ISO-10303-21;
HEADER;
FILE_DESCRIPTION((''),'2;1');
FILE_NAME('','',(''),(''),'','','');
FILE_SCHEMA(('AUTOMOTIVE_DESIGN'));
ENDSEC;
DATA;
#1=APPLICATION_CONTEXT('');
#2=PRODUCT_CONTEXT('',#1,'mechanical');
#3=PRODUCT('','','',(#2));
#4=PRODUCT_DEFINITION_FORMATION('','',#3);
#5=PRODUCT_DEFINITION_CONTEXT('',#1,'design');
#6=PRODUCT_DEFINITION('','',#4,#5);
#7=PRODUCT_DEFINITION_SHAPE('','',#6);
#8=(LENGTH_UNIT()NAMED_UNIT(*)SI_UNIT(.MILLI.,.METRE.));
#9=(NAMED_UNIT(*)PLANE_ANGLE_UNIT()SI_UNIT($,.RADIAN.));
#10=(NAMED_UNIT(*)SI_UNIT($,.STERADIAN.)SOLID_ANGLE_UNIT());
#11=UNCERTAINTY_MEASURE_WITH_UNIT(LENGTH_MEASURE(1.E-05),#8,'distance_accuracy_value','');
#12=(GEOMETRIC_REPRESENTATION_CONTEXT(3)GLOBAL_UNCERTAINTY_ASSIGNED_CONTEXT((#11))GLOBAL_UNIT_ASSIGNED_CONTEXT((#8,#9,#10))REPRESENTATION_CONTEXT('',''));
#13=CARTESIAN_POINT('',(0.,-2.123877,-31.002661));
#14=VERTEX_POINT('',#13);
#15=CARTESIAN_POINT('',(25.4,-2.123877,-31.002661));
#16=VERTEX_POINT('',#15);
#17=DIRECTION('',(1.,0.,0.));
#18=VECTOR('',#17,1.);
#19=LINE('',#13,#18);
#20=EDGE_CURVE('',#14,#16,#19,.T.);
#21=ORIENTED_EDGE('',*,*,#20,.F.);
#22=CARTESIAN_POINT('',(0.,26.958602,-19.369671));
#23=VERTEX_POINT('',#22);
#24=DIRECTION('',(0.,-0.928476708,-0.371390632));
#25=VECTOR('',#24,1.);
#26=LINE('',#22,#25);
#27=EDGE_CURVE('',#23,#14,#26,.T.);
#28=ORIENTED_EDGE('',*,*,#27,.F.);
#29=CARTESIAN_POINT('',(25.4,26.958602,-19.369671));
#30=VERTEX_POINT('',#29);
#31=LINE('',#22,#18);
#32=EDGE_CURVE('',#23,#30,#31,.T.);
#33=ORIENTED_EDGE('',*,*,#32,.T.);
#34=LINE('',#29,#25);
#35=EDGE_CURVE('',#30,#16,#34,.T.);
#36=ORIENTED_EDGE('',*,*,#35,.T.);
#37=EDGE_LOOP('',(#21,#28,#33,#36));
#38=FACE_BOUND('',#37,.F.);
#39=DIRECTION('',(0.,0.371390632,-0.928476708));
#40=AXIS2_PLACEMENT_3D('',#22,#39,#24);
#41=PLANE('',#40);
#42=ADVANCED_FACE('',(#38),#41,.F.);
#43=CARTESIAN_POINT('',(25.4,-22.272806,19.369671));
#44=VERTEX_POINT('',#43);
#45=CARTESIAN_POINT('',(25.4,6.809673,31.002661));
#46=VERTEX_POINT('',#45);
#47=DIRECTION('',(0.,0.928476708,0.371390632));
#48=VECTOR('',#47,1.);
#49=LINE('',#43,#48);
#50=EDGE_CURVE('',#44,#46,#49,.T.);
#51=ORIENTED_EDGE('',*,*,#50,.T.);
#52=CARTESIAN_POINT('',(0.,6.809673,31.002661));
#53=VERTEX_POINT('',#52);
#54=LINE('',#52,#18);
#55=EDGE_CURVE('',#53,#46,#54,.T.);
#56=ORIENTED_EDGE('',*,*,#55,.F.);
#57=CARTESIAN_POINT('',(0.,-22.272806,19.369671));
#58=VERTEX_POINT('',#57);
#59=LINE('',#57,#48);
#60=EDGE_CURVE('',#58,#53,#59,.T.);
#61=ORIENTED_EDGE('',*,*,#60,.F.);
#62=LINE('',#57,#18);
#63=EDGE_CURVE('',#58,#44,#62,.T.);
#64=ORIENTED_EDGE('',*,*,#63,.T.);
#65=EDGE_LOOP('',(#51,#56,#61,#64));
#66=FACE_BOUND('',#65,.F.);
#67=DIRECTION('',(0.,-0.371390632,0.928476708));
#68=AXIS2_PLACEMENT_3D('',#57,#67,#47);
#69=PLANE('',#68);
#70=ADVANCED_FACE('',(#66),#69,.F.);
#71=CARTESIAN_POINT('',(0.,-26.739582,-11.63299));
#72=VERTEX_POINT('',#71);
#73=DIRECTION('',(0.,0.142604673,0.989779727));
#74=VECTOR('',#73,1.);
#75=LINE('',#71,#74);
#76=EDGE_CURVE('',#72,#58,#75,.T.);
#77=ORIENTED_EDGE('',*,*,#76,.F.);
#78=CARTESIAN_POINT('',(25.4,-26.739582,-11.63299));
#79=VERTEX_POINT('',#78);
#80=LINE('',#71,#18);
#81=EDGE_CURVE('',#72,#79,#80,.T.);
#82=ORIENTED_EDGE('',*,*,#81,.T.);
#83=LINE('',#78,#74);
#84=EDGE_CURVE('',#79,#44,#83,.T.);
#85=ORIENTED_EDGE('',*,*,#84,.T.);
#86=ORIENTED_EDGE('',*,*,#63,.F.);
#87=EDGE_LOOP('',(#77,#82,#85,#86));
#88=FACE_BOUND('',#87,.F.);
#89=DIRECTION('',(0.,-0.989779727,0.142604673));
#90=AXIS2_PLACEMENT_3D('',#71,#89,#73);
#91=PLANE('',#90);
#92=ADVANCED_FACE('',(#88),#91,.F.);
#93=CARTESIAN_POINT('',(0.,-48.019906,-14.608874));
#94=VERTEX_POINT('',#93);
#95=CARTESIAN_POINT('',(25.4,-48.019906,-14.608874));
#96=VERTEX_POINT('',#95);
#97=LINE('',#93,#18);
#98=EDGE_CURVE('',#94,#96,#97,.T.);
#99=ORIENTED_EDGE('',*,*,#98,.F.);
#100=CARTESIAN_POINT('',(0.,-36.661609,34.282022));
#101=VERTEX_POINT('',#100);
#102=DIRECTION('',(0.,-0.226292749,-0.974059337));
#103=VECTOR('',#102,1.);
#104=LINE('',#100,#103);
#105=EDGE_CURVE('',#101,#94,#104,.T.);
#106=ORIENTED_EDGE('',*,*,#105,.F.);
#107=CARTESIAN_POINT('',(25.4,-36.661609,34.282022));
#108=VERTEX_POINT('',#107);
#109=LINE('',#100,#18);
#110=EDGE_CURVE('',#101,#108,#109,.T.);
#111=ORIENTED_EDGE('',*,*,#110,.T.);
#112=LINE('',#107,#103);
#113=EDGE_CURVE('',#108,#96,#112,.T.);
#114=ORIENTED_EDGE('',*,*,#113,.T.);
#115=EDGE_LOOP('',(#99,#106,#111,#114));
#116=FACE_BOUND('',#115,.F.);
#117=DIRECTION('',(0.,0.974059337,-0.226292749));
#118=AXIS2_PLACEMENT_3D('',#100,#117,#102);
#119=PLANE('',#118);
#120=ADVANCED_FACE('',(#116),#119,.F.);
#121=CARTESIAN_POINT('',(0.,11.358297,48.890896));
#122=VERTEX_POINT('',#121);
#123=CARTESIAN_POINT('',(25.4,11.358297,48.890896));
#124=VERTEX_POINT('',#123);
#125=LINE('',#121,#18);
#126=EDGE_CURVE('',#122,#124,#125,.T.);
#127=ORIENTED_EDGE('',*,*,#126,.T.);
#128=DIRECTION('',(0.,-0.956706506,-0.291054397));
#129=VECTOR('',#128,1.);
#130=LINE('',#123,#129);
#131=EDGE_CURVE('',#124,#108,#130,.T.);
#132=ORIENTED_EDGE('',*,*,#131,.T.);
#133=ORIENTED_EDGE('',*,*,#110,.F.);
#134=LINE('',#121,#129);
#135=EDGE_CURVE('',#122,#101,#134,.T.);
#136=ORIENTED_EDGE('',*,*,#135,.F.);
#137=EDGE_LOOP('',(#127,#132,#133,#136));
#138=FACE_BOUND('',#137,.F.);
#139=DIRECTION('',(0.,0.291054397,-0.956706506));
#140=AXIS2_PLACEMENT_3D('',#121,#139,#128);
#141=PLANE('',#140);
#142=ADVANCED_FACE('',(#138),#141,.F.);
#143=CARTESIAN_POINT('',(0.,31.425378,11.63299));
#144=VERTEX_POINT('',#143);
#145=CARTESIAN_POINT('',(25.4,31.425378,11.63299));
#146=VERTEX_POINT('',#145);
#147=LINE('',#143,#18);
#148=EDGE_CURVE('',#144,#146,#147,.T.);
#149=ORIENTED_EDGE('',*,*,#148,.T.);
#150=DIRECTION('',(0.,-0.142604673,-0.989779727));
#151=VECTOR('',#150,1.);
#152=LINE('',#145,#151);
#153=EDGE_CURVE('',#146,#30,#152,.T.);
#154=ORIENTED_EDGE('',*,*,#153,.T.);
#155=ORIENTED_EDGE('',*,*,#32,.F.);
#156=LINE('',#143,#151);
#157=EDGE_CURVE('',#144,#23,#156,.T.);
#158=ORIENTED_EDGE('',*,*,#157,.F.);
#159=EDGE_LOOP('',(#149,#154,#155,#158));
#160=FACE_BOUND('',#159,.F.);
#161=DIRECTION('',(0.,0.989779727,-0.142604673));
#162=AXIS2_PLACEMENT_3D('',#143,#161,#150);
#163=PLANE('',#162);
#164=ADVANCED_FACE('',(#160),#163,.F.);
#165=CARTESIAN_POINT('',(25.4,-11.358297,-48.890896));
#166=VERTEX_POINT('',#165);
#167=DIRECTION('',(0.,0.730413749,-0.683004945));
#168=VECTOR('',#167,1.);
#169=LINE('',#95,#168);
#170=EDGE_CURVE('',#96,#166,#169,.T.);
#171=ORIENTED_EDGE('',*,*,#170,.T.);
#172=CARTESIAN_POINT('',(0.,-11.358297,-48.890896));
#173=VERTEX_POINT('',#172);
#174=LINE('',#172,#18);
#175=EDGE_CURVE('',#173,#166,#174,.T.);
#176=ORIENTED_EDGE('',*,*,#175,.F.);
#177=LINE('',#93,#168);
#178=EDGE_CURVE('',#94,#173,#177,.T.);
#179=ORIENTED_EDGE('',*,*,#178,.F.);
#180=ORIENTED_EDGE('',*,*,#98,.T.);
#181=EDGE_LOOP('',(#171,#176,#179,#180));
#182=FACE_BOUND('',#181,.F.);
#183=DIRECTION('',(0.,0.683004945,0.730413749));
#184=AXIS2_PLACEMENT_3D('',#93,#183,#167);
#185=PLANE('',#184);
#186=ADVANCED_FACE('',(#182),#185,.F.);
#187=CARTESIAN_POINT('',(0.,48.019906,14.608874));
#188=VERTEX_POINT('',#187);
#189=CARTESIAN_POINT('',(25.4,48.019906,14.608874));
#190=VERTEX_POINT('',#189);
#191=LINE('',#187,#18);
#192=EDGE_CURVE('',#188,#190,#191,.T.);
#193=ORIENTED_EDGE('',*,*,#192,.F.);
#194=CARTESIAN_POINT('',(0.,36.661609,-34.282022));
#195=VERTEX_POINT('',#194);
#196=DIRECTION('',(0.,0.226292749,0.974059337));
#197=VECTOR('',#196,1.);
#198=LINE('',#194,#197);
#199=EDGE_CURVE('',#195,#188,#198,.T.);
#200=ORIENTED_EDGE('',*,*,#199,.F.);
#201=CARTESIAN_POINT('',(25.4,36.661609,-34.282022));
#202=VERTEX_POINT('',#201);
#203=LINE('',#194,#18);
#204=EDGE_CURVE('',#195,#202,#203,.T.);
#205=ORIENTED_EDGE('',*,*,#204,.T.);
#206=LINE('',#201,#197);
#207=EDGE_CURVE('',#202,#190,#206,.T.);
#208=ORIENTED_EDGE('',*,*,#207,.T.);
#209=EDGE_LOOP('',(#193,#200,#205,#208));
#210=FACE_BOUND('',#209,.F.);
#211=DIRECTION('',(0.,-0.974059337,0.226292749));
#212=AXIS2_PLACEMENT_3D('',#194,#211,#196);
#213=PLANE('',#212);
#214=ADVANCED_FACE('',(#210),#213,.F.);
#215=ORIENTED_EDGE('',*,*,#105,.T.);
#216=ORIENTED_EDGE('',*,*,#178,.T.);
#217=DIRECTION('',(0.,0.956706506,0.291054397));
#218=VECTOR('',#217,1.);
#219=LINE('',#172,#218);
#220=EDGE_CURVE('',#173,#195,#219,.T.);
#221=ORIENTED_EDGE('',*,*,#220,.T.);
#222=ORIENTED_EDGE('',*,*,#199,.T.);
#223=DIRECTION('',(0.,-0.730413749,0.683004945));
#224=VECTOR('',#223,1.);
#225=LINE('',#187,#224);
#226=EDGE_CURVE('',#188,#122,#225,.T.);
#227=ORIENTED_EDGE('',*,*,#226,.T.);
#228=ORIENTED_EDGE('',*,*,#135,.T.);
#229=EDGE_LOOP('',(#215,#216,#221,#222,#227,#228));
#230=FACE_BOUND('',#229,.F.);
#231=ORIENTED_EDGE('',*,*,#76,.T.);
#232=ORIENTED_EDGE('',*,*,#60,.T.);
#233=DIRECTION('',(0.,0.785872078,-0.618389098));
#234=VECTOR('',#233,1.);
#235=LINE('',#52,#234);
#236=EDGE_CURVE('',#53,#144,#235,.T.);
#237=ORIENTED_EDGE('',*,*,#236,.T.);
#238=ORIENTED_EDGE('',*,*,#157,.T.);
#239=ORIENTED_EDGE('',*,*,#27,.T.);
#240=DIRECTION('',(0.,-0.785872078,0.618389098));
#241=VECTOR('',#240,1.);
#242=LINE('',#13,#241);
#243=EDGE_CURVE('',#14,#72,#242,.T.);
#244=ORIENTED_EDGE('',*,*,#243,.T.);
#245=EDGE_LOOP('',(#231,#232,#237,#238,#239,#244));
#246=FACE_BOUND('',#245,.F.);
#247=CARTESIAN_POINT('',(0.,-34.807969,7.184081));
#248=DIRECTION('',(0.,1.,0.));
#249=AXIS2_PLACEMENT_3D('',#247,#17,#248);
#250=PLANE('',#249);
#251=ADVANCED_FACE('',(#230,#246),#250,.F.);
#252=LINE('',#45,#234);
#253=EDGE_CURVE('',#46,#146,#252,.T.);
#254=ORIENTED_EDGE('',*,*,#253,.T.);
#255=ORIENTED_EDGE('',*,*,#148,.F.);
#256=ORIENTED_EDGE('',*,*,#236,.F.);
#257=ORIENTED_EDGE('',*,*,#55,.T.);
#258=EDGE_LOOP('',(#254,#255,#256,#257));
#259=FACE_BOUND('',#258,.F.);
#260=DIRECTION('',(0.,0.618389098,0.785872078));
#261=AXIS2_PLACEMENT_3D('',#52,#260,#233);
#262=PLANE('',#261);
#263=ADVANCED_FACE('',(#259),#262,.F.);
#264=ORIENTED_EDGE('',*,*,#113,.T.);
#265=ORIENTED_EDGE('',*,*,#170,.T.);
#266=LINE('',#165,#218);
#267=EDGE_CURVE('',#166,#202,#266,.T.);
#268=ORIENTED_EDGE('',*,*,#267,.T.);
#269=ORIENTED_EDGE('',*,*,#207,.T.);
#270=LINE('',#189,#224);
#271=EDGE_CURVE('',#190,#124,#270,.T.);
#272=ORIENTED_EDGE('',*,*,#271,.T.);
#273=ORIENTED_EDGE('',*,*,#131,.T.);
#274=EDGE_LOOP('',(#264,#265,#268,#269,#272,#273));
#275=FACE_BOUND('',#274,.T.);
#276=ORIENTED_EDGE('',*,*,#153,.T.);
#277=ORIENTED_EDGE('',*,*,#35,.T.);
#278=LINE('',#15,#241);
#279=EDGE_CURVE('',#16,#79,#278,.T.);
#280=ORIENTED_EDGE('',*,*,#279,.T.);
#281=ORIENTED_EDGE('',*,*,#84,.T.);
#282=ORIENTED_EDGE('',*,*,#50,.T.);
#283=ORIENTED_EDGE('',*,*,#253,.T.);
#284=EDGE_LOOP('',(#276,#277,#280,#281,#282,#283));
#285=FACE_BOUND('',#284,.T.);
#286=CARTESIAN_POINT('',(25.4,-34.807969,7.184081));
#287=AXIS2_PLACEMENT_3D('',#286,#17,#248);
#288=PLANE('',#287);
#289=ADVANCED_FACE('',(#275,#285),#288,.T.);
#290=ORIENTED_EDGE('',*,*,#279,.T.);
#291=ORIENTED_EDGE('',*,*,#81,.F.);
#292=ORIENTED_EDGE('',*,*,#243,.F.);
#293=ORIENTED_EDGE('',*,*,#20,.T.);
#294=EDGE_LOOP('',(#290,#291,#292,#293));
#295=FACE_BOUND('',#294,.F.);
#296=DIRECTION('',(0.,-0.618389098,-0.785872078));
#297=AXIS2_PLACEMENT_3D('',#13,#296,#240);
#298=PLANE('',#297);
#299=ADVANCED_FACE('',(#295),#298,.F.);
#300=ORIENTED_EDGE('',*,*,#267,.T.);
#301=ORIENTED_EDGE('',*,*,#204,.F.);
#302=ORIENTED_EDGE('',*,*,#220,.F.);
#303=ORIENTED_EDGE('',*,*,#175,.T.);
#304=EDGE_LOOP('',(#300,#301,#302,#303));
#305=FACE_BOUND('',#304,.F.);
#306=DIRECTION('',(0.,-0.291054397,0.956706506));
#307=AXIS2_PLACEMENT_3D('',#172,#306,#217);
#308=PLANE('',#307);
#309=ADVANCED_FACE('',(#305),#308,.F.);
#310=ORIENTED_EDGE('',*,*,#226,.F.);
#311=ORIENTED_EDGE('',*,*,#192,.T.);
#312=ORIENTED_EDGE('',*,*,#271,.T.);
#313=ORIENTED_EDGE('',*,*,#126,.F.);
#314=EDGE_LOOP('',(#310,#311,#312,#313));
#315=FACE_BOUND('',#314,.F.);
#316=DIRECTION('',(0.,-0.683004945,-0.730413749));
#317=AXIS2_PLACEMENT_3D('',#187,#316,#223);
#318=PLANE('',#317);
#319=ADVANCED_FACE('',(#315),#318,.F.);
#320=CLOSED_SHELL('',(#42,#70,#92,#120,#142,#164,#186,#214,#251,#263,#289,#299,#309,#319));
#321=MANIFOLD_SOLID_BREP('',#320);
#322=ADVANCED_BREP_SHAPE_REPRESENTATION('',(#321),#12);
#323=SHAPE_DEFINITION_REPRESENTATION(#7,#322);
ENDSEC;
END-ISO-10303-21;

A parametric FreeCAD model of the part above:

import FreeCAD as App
import Part
import Sketcher

V = App.Vector

doc = App.newDocument("Part")
params = doc.addObject("Spreadsheet::Sheet", "Params")
for row, (alias, value) in enumerate([
    ("pad1_length", "1 in"),
], start=1):
    params.set(f"A{row}", alias)
    params.set(f"B{row}", "=" + value)
    params.setAlias(f"B{row}", alias)

body = doc.addObject("PartDesign::Body", "Body")

# Sketch on YZ plane
sketch1 = body.newObject("Sketcher::SketchObject", "Sketch")
sketch1.AttachmentSupport = (doc.getObject("YZ_Plane"), [""])
sketch1.MapMode = "FlatFace"
sketch1.addGeometry(Part.LineSegment(V(-37, 34, 0), V(-48, -15, 0)), False)
sketch1.addGeometry(Part.LineSegment(V(-48, -15, 0), V(-11, -49, 0)), False)
sketch1.addGeometry(Part.LineSegment(V(-11, -49, 0), V(37, -34, 0)), False)
sketch1.addGeometry(Part.LineSegment(V(37, -34, 0), V(48, 15, 0)), False)
sketch1.addGeometry(Part.LineSegment(V(48, 15, 0), V(11, 49, 0)), False)
sketch1.addGeometry(Part.LineSegment(V(11, 49, 0), V(-37, 34, 0)), False)
sketch1.addGeometry(Part.LineSegment(V(-27, -12, 0), V(-22, 19, 0)), False)
sketch1.addGeometry(Part.LineSegment(V(-22, 19, 0), V(7, 31, 0)), False)
sketch1.addGeometry(Part.LineSegment(V(7, 31, 0), V(31, 12, 0)), False)
sketch1.addGeometry(Part.LineSegment(V(31, 12, 0), V(27, -19, 0)), False)
sketch1.addGeometry(Part.LineSegment(V(27, -19, 0), V(-2, -31, 0)), False)
sketch1.addGeometry(Part.LineSegment(V(-2, -31, 0), V(-27, -12, 0)), False)
sketch1.addConstraint(Sketcher.Constraint("Coincident", 0, 2, 1, 1))
sketch1.addConstraint(Sketcher.Constraint("Coincident", 1, 2, 2, 1))
sketch1.addConstraint(Sketcher.Constraint("Coincident", 2, 2, 3, 1))
sketch1.addConstraint(Sketcher.Constraint("Coincident", 3, 2, 4, 1))
sketch1.addConstraint(Sketcher.Constraint("Coincident", 4, 2, 5, 1))
sketch1.addConstraint(Sketcher.Constraint("Coincident", 5, 2, 0, 1))
sketch1.addConstraint(Sketcher.Constraint("Coincident", 6, 2, 7, 1))
sketch1.addConstraint(Sketcher.Constraint("Coincident", 7, 2, 8, 1))
sketch1.addConstraint(Sketcher.Constraint("Coincident", 8, 2, 9, 1))
sketch1.addConstraint(Sketcher.Constraint("Coincident", 9, 2, 10, 1))
sketch1.addConstraint(Sketcher.Constraint("Coincident", 10, 2, 11, 1))
sketch1.addConstraint(Sketcher.Constraint("Coincident", 11, 2, 6, 1))
sketch1.addConstraint(Sketcher.Constraint("Symmetric", 0, 2, 3, 2, -1, 1))
sketch1.addConstraint(Sketcher.Constraint("Symmetric", 1, 2, 4, 2, -1, 1))
sketch1.addConstraint(Sketcher.Constraint("Symmetric", 2, 2, 5, 2, -1, 1))
sketch1.addConstraint(Sketcher.Constraint("Parallel", 6, 9))
sketch1.addConstraint(Sketcher.Constraint("Parallel", 7, 10))
sketch1.addConstraint(Sketcher.Constraint("Parallel", 8, 11))
sketch1.addConstraint(Sketcher.Constraint("Equal", 0, 1))
sketch1.addConstraint(Sketcher.Constraint("Equal", 1, 2))
sketch1.addConstraint(Sketcher.Constraint("Equal", 6, 7))
sketch1.addConstraint(Sketcher.Constraint("Equal", 7, 8))
sketch1.addConstraint(Sketcher.Constraint("Equal", 8, 9))
sketch1.addConstraint(Sketcher.Constraint("DistanceX", -1, 1, 9, 2, 26.958602))
sketch1.addConstraint(Sketcher.Constraint("DistanceX", 0, 2, 6, 2, 25.7471))
sketch1.addConstraint(Sketcher.Constraint("DistanceX", 1, 2, 9, 2, 38.316899))
sketch1.addConstraint(Sketcher.Constraint("Distance", 6, 31.322788))
sketch1.addConstraint(Sketcher.Constraint("DistanceX", -1, 1, 2, 2, 36.661609))
sketch1.addConstraint(Sketcher.Constraint("DistanceY", 2, 2, -1, 1, 34.282022))
sketch1.addConstraint(Sketcher.Constraint("DistanceY", -1, 1, 6, 2, 19.369671))
sketch1.addConstraint(Sketcher.Constraint("DistanceY", -1, 1, 7, 2, 31.002661))
sketch1.addConstraint(Sketcher.Constraint("DistanceY", -1, 1, 8, 2, 11.63299))
sketch1.addConstraint(Sketcher.Constraint("DistanceY", 9, 2, -1, 1, 19.369671))
pad1 = body.newObject("PartDesign::Pad", "Pad")
pad1.Profile = sketch1
pad1.setExpression("Length", "Params.pad1_length")

doc.recompute()
